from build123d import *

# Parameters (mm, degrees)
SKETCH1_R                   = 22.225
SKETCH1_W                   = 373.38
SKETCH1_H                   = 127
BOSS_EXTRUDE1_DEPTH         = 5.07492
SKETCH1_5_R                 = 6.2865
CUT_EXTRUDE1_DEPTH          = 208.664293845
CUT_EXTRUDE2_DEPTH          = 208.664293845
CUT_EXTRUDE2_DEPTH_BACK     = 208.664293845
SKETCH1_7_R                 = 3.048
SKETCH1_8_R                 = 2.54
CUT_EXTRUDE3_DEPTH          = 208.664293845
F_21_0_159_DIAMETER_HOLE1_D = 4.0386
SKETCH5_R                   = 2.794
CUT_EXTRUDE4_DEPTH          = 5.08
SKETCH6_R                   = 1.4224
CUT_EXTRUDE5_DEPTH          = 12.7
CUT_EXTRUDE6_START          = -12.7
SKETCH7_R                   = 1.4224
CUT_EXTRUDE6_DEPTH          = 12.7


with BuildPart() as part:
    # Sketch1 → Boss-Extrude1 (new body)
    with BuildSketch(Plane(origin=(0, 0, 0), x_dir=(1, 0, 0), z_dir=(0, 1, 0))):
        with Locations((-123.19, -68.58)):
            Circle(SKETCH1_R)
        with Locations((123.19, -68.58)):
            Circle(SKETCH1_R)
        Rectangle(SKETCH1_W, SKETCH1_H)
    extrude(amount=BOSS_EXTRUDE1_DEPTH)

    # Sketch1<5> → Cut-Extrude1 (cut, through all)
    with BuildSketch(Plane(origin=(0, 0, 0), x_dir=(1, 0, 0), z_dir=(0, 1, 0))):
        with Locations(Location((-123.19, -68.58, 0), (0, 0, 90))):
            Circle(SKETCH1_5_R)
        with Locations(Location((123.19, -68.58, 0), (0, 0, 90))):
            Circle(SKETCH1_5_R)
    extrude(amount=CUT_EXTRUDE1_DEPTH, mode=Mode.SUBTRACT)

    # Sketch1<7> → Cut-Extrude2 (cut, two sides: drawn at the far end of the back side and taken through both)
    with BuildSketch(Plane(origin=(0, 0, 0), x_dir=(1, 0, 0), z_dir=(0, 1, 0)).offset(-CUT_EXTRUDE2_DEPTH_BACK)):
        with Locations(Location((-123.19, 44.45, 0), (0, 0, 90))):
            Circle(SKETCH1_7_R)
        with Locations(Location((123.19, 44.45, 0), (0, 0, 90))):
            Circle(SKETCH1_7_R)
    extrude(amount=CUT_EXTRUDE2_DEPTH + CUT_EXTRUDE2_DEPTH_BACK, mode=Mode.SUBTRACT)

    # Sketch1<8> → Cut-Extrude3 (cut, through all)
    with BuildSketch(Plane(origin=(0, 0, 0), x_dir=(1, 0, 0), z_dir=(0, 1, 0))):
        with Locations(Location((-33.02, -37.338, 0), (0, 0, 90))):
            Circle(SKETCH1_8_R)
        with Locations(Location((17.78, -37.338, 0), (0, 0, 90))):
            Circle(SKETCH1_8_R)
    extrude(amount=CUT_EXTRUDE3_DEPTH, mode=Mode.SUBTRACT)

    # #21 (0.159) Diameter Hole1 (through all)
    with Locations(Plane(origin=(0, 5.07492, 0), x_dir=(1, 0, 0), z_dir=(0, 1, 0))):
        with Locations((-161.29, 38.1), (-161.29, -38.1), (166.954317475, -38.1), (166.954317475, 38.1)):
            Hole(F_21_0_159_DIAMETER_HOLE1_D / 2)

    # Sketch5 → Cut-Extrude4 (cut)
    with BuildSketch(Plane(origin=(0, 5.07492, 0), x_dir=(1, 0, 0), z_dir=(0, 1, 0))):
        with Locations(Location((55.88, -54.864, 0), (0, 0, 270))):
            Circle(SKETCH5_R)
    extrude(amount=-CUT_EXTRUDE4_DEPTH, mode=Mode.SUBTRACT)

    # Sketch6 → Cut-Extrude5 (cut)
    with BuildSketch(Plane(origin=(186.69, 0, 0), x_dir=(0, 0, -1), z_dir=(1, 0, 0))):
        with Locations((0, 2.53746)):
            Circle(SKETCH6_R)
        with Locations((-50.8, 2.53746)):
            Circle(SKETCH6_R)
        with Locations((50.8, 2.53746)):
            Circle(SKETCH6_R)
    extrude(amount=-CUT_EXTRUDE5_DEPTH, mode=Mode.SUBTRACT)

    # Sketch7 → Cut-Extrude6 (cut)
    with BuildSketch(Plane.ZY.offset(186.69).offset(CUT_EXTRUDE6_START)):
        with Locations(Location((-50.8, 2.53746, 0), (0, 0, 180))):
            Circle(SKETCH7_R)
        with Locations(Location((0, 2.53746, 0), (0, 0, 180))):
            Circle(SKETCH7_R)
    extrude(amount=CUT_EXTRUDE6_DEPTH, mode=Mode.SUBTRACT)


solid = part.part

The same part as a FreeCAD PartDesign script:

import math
import FreeCAD as App
import Part
import Sketcher
from FreeCAD import Vector
Q = App.Units.Quantity

doc = App.newDocument("Part")
body = doc.addObject("PartDesign::Body", "Body")

# Sketch on XZ plane
sketch1 = body.newObject("Sketcher::SketchObject", "Sketch")
sketch1.AttachmentSupport = (doc.getObject("XZ_Plane"), [""])
sketch1.MapMode = "FlatFace"
sketch1.addGeometry(Part.ArcOfCircle(Part.Circle(Vector(-123.19, 68.58, 0), Vector(0, 0, 1), 22.225), math.radians(-13.21298), math.radians(193.21298)), False)
sketch1.addGeometry(Part.LineSegment(Vector(-101.553359, 63.5, 0), Vector(101.553359, 63.5, 0)), False)
sketch1.addGeometry(Part.ArcOfCircle(Part.Circle(Vector(123.19, 68.58, 0), Vector(0, 0, 1), 22.225), math.radians(-13.21298), math.radians(193.21298)), False)
sketch1.addGeometry(Part.LineSegment(Vector(144.826641, 63.5, 0), Vector(186.69, 63.5, 0)), False)
sketch1.addGeometry(Part.LineSegment(Vector(186.69, 63.5, 0), Vector(186.69, -63.5, 0)), False)
sketch1.addGeometry(Part.LineSegment(Vector(186.69, -63.5, 0), Vector(-186.69, -63.5, 0)), False)
sketch1.addGeometry(Part.LineSegment(Vector(-186.69, -63.5, 0), Vector(-186.69, 63.5, 0)), False)
sketch1.addGeometry(Part.LineSegment(Vector(-186.69, 63.5, 0), Vector(-144.826641, 63.5, 0)), False)
sketch1.addConstraint(Sketcher.Constraint("Coincident", 0, 1, 1, 1))
sketch1.addConstraint(Sketcher.Constraint("Coincident", 1, 2, 2, 2))
sketch1.addConstraint(Sketcher.Constraint("Coincident", 2, 1, 3, 1))
sketch1.addConstraint(Sketcher.Constraint("Coincident", 3, 2, 4, 1))
sketch1.addConstraint(Sketcher.Constraint("Coincident", 4, 2, 5, 1))
sketch1.addConstraint(Sketcher.Constraint("Coincident", 5, 2, 6, 1))
sketch1.addConstraint(Sketcher.Constraint("Coincident", 6, 2, 7, 1))
sketch1.addConstraint(Sketcher.Constraint("Coincident", 7, 2, 0, 2))
sketch1.addConstraint(Sketcher.Constraint("Horizontal", 1))
sketch1.addConstraint(Sketcher.Constraint("Horizontal", 3))
sketch1.addConstraint(Sketcher.Constraint("Vertical", 4))
sketch1.addConstraint(Sketcher.Constraint("Horizontal", 5))
sketch1.addConstraint(Sketcher.Constraint("Vertical", 6))
sketch1.addConstraint(Sketcher.Constraint("Horizontal", 7))
sketch1.addConstraint(Sketcher.Constraint("Equal", 0, 2))
sketch1.addConstraint(Sketcher.Constraint("Symmetric", 3, 2, 5, 2, -1, 1))
sketch1.addConstraint(Sketcher.Constraint("Symmetric", 0, 3, 2, 3, -2))
sketch1.addConstraint(Sketcher.Constraint("Horizontal", 1, 2, 2, 1))
sketch1.addConstraint(Sketcher.Constraint("Horizontal", 3, 2, 6, 2))
sketch1.addConstraint(Sketcher.Constraint("DistanceY", 4, 2, 4, 1, Q("5 in")))
sketch1.addConstraint(Sketcher.Constraint("DistanceX", 5, 2, 5, 1, Q("14.7 in")))
sketch1.addConstraint(Sketcher.Constraint("Radius", 0, Q("0.875 in")))
sketch1.addConstraint(Sketcher.Constraint("DistanceY", -1, 1, 0, 3, Q("2.7 in")))
sketch1.addConstraint(Sketcher.Constraint("DistanceX", 0, 3, 2, 3, Q("9.7 in")))
pad1 = body.newObject("PartDesign::Pad", "Pad")
pad1.Profile = sketch1
pad1.Length = Q("0.1998 in")
pad1.Reversed = True

# Sketch on XZ plane
sketch2 = body.newObject("Sketcher::SketchObject", "Sketch001")
sketch2.AttachmentSupport = (doc.getObject("XZ_Plane"), [""])
sketch2.MapMode = "FlatFace"
sketch2.addGeometry(Part.Circle(Vector(-123.19, 68.58, 0), Vector(0, 0, 1), 6.2865), False)
sketch2.addGeometry(Part.Circle(Vector(123.19, 68.58, 0), Vector(0, 0, 1), 6.2865), False)
sketch2.addConstraint(Sketcher.Constraint("Equal", 0, 1))
sketch2.addConstraint(Sketcher.Constraint("Symmetric", 0, 3, 1, 3, -2))
sketch2.addConstraint(Sketcher.Constraint("Diameter", 0, Q("0.495 in")))
sketch2.addConstraint(Sketcher.Constraint("DistanceY", -1, 1, 0, 3, Q("2.7 in")))
sketch2.addConstraint(Sketcher.Constraint("DistanceX", 0, 3, 1, 3, Q("9.7 in")))
pocket1 = body.newObject("PartDesign::Pocket", "Pocket")
pocket1.Profile = sketch2
pocket1.Type = "ThroughAll"

# Sketch on XZ plane
sketch3 = body.newObject("Sketcher::SketchObject", "Sketch002")
sketch3.AttachmentSupport = (doc.getObject("XZ_Plane"), [""])
sketch3.MapMode = "FlatFace"
sketch3.addGeometry(Part.Circle(Vector(-123.19, -44.45, 0), Vector(0, 0, 1), 3.048), False)
sketch3.addGeometry(Part.Circle(Vector(123.19, -44.45, 0), Vector(0, 0, 1), 3.048), False)
sketch3.addConstraint(Sketcher.Constraint("Equal", 0, 1))
sketch3.addConstraint(Sketcher.Constraint("Symmetric", 0, 3, 1, 3, -2))
sketch3.addConstraint(Sketcher.Constraint("Diameter", 0, Q("0.24 in")))
sketch3.addConstraint(Sketcher.Constraint("DistanceX", 0, 3, 1, 3, Q("9.7 in")))
sketch3.addConstraint(Sketcher.Constraint("DistanceY", 0, 3, -1, 1, Q("1.75 in")))
pocket2 = body.newObject("PartDesign::Pocket", "Pocket001")
pocket2.Profile = sketch3
pocket2.Type = "ThroughAll"
pocket2.Midplane = True

# Sketch on XZ plane
sketch4 = body.newObject("Sketcher::SketchObject", "Sketch003")
sketch4.AttachmentSupport = (doc.getObject("XZ_Plane"), [""])
sketch4.MapMode = "FlatFace"
sketch4.addGeometry(Part.Circle(Vector(-33.02, 37.338, 0), Vector(0, 0, 1), 2.54), False)
sketch4.addGeometry(Part.Circle(Vector(17.78, 37.338, 0), Vector(0, 0, 1), 2.54), False)
sketch4.addConstraint(Sketcher.Constraint("Equal", 0, 1))
sketch4.addConstraint(Sketcher.Constraint("Horizontal", 0, 3, 1, 3))
sketch4.addConstraint(Sketcher.Constraint("Diameter", 0, Q("0.2 in")))
sketch4.addConstraint(Sketcher.Constraint("DistanceX", 0, 3, 1, 3, Q("2 in")))
sketch4.addConstraint(Sketcher.Constraint("DistanceX", 0, 3, -1, 1, Q("1.3 in")))
sketch4.addConstraint(Sketcher.Constraint("DistanceY", -1, 1, 0, 3, Q("1.47 in")))
pocket3 = body.newObject("PartDesign::Pocket", "Pocket002")
pocket3.Profile = sketch4
pocket3.Type = "ThroughAll"

# Sketch on XZ plane
sketch5 = body.newObject("Sketcher::SketchObject", "Sketch004")
sketch5.AttachmentSupport = (doc.getObject("XZ_Plane"), [""])
sketch5.MapMode = "FlatFace"
sketch5.AttachmentOffset = App.Placement(Vector(0, 0, -0.1998 * 25.4), App.Rotation())
sketch5.addGeometry(Part.Circle(Vector(-161.29, -38.1, 0), Vector(0, 0, 1), 2.0193), False)
sketch5.addGeometry(Part.Circle(Vector(-161.29, 38.1, 0), Vector(0, 0, 1), 2.0193), False)
sketch5.addGeometry(Part.Circle(Vector(166.954317, 38.1, 0), Vector(0, 0, 1), 2.0193), False)
sketch5.addGeometry(Part.Circle(Vector(166.954317, -38.1, 0), Vector(0, 0, 1), 2.0193), False)
sketch5.addConstraint(Sketcher.Constraint("Equal", 0, 1))
sketch5.addConstraint(Sketcher.Constraint("Equal", 1, 2))
sketch5.addConstraint(Sketcher.Constraint("Equal", 2, 3))
sketch5.addConstraint(Sketcher.Constraint("Symmetric", 0, 3, 1, 3, -1))
sketch5.addConstraint(Sketcher.Constraint("Symmetric", 2, 3, 3, 3, -1))
sketch5.addConstraint(Sketcher.Constraint("Horizontal", 1, 3, 2, 3))
sketch5.addConstraint(Sketcher.Constraint("Diameter", 0, Q("0.159 in")))
sketch5.addConstraint(Sketcher.Constraint("DistanceY", 0, 3, 1, 3, Q("3 in")))
sketch5.addConstraint(Sketcher.Constraint("DistanceX", 0, 3, -1, 1, Q("6.35 in")))
sketch5.addConstraint(Sketcher.Constraint("DistanceX", -1, 1, 2, 3, Q("166.954317 mm")))
doc.recompute()
hole = body.newObject("PartDesign::Hole", "Hole")
hole.Profile = sketch5
hole.ThreadType = "None"
hole.Diameter = Q("0.159 in")
hole.DepthType = "ThroughAll"
hole.Reversed = True

# Sketch on XZ plane
sketch6 = body.newObject("Sketcher::SketchObject", "Sketch005")
sketch6.AttachmentSupport = (doc.getObject("XZ_Plane"), [""])
sketch6.MapMode = "FlatFace"
sketch6.AttachmentOffset = App.Placement(Vector(0, 0, -0.1998 * 25.4), App.Rotation())
sketch6.addGeometry(Part.Circle(Vector(55.88, 54.864, 0), Vector(0, 0, 1), 2.794), False)
sketch6.addConstraint(Sketcher.Constraint("Diameter", 0, Q("0.22 in")))
sketch6.addConstraint(Sketcher.Constraint("DistanceX", -1, 1, 0, 3, Q("2.2 in")))
sketch6.addConstraint(Sketcher.Constraint("DistanceY", -1, 1, 0, 3, Q("2.16 in")))
pocket4 = body.newObject("PartDesign::Pocket", "Pocket003")
pocket4.Profile = sketch6
pocket4.Length = Q("0.2 in")
pocket4.Reversed = True

# Sketch on YZ plane
sketch7 = body.newObject("Sketcher::SketchObject", "Sketch006")
sketch7.AttachmentSupport = (doc.getObject("YZ_Plane"), [""])
sketch7.MapMode = "FlatFace"
sketch7.AttachmentOffset = App.Placement(Vector(0, 0, 7.35 * 25.4), App.Rotation())
sketch7.addGeometry(Part.Circle(Vector(2.53746, 0, 0), Vector(0, 0, 1), 1.4224), False)
sketch7.addGeometry(Part.Circle(Vector(2.53746, 50.8, 0), Vector(0, 0, 1), 1.4224), False)
sketch7.addGeometry(Part.Circle(Vector(2.53746, -50.8, 0), Vector(0, 0, 1), 1.4224), False)
sketch7.addConstraint(Sketcher.Constraint("Equal", 0, 1))
sketch7.addConstraint(Sketcher.Constraint("Equal", 1, 2))
sketch7.addConstraint(Sketcher.Constraint("Symmetric", 1, 3, 2, 3, -1))
sketch7.addConstraint(Sketcher.Constraint("PointOnObject", 0, 3, -1))
sketch7.addConstraint(Sketcher.Constraint("Vertical", 0, 3, 1, 3))
sketch7.addConstraint(Sketcher.Constraint("Diameter", 0, Q("0.112 in")))
sketch7.addConstraint(Sketcher.Constraint("DistanceY", -1, 1, 1, 3, Q("2 in")))
sketch7.addConstraint(Sketcher.Constraint("DistanceX", -1, 1, 0, 3, Q("0.0999 in")))
pocket5 = body.newObject("PartDesign::Pocket", "Pocket004")
pocket5.Profile = sketch7
pocket5.Length = Q("0.5 in")

# Sketch on YZ plane
sketch8 = body.newObject("Sketcher::SketchObject", "Sketch007")
sketch8.AttachmentSupport = (doc.getObject("YZ_Plane"), [""])
sketch8.MapMode = "FlatFace"
sketch8.AttachmentOffset = App.Placement(Vector(0, 0, -6.85 * 25.4), App.Rotation())
sketch8.addGeometry(Part.Circle(Vector(2.53746, -50.8, 0), Vector(0, 0, 1), 1.4224), False)
sketch8.addGeometry(Part.Circle(Vector(2.53746, 0, 0), Vector(0, 0, 1), 1.4224), False)
sketch8.addConstraint(Sketcher.Constraint("Equal", 0, 1))
sketch8.addConstraint(Sketcher.Constraint("PointOnObject", 1, 3, -1))
sketch8.addConstraint(Sketcher.Constraint("Vertical", 0, 3, 1, 3))
sketch8.addConstraint(Sketcher.Constraint("Diameter", 0, Q("0.112 in")))
sketch8.addConstraint(Sketcher.Constraint("DistanceY", 0, 3, -1, 1, Q("2 in")))
sketch8.addConstraint(Sketcher.Constraint("DistanceX", -1, 1, 0, 3, Q("0.0999 in")))
pocket6 = body.newObject("PartDesign::Pocket", "Pocket005")
pocket6.Profile = sketch8
pocket6.Length = Q("0.5 in")

doc.recompute()
